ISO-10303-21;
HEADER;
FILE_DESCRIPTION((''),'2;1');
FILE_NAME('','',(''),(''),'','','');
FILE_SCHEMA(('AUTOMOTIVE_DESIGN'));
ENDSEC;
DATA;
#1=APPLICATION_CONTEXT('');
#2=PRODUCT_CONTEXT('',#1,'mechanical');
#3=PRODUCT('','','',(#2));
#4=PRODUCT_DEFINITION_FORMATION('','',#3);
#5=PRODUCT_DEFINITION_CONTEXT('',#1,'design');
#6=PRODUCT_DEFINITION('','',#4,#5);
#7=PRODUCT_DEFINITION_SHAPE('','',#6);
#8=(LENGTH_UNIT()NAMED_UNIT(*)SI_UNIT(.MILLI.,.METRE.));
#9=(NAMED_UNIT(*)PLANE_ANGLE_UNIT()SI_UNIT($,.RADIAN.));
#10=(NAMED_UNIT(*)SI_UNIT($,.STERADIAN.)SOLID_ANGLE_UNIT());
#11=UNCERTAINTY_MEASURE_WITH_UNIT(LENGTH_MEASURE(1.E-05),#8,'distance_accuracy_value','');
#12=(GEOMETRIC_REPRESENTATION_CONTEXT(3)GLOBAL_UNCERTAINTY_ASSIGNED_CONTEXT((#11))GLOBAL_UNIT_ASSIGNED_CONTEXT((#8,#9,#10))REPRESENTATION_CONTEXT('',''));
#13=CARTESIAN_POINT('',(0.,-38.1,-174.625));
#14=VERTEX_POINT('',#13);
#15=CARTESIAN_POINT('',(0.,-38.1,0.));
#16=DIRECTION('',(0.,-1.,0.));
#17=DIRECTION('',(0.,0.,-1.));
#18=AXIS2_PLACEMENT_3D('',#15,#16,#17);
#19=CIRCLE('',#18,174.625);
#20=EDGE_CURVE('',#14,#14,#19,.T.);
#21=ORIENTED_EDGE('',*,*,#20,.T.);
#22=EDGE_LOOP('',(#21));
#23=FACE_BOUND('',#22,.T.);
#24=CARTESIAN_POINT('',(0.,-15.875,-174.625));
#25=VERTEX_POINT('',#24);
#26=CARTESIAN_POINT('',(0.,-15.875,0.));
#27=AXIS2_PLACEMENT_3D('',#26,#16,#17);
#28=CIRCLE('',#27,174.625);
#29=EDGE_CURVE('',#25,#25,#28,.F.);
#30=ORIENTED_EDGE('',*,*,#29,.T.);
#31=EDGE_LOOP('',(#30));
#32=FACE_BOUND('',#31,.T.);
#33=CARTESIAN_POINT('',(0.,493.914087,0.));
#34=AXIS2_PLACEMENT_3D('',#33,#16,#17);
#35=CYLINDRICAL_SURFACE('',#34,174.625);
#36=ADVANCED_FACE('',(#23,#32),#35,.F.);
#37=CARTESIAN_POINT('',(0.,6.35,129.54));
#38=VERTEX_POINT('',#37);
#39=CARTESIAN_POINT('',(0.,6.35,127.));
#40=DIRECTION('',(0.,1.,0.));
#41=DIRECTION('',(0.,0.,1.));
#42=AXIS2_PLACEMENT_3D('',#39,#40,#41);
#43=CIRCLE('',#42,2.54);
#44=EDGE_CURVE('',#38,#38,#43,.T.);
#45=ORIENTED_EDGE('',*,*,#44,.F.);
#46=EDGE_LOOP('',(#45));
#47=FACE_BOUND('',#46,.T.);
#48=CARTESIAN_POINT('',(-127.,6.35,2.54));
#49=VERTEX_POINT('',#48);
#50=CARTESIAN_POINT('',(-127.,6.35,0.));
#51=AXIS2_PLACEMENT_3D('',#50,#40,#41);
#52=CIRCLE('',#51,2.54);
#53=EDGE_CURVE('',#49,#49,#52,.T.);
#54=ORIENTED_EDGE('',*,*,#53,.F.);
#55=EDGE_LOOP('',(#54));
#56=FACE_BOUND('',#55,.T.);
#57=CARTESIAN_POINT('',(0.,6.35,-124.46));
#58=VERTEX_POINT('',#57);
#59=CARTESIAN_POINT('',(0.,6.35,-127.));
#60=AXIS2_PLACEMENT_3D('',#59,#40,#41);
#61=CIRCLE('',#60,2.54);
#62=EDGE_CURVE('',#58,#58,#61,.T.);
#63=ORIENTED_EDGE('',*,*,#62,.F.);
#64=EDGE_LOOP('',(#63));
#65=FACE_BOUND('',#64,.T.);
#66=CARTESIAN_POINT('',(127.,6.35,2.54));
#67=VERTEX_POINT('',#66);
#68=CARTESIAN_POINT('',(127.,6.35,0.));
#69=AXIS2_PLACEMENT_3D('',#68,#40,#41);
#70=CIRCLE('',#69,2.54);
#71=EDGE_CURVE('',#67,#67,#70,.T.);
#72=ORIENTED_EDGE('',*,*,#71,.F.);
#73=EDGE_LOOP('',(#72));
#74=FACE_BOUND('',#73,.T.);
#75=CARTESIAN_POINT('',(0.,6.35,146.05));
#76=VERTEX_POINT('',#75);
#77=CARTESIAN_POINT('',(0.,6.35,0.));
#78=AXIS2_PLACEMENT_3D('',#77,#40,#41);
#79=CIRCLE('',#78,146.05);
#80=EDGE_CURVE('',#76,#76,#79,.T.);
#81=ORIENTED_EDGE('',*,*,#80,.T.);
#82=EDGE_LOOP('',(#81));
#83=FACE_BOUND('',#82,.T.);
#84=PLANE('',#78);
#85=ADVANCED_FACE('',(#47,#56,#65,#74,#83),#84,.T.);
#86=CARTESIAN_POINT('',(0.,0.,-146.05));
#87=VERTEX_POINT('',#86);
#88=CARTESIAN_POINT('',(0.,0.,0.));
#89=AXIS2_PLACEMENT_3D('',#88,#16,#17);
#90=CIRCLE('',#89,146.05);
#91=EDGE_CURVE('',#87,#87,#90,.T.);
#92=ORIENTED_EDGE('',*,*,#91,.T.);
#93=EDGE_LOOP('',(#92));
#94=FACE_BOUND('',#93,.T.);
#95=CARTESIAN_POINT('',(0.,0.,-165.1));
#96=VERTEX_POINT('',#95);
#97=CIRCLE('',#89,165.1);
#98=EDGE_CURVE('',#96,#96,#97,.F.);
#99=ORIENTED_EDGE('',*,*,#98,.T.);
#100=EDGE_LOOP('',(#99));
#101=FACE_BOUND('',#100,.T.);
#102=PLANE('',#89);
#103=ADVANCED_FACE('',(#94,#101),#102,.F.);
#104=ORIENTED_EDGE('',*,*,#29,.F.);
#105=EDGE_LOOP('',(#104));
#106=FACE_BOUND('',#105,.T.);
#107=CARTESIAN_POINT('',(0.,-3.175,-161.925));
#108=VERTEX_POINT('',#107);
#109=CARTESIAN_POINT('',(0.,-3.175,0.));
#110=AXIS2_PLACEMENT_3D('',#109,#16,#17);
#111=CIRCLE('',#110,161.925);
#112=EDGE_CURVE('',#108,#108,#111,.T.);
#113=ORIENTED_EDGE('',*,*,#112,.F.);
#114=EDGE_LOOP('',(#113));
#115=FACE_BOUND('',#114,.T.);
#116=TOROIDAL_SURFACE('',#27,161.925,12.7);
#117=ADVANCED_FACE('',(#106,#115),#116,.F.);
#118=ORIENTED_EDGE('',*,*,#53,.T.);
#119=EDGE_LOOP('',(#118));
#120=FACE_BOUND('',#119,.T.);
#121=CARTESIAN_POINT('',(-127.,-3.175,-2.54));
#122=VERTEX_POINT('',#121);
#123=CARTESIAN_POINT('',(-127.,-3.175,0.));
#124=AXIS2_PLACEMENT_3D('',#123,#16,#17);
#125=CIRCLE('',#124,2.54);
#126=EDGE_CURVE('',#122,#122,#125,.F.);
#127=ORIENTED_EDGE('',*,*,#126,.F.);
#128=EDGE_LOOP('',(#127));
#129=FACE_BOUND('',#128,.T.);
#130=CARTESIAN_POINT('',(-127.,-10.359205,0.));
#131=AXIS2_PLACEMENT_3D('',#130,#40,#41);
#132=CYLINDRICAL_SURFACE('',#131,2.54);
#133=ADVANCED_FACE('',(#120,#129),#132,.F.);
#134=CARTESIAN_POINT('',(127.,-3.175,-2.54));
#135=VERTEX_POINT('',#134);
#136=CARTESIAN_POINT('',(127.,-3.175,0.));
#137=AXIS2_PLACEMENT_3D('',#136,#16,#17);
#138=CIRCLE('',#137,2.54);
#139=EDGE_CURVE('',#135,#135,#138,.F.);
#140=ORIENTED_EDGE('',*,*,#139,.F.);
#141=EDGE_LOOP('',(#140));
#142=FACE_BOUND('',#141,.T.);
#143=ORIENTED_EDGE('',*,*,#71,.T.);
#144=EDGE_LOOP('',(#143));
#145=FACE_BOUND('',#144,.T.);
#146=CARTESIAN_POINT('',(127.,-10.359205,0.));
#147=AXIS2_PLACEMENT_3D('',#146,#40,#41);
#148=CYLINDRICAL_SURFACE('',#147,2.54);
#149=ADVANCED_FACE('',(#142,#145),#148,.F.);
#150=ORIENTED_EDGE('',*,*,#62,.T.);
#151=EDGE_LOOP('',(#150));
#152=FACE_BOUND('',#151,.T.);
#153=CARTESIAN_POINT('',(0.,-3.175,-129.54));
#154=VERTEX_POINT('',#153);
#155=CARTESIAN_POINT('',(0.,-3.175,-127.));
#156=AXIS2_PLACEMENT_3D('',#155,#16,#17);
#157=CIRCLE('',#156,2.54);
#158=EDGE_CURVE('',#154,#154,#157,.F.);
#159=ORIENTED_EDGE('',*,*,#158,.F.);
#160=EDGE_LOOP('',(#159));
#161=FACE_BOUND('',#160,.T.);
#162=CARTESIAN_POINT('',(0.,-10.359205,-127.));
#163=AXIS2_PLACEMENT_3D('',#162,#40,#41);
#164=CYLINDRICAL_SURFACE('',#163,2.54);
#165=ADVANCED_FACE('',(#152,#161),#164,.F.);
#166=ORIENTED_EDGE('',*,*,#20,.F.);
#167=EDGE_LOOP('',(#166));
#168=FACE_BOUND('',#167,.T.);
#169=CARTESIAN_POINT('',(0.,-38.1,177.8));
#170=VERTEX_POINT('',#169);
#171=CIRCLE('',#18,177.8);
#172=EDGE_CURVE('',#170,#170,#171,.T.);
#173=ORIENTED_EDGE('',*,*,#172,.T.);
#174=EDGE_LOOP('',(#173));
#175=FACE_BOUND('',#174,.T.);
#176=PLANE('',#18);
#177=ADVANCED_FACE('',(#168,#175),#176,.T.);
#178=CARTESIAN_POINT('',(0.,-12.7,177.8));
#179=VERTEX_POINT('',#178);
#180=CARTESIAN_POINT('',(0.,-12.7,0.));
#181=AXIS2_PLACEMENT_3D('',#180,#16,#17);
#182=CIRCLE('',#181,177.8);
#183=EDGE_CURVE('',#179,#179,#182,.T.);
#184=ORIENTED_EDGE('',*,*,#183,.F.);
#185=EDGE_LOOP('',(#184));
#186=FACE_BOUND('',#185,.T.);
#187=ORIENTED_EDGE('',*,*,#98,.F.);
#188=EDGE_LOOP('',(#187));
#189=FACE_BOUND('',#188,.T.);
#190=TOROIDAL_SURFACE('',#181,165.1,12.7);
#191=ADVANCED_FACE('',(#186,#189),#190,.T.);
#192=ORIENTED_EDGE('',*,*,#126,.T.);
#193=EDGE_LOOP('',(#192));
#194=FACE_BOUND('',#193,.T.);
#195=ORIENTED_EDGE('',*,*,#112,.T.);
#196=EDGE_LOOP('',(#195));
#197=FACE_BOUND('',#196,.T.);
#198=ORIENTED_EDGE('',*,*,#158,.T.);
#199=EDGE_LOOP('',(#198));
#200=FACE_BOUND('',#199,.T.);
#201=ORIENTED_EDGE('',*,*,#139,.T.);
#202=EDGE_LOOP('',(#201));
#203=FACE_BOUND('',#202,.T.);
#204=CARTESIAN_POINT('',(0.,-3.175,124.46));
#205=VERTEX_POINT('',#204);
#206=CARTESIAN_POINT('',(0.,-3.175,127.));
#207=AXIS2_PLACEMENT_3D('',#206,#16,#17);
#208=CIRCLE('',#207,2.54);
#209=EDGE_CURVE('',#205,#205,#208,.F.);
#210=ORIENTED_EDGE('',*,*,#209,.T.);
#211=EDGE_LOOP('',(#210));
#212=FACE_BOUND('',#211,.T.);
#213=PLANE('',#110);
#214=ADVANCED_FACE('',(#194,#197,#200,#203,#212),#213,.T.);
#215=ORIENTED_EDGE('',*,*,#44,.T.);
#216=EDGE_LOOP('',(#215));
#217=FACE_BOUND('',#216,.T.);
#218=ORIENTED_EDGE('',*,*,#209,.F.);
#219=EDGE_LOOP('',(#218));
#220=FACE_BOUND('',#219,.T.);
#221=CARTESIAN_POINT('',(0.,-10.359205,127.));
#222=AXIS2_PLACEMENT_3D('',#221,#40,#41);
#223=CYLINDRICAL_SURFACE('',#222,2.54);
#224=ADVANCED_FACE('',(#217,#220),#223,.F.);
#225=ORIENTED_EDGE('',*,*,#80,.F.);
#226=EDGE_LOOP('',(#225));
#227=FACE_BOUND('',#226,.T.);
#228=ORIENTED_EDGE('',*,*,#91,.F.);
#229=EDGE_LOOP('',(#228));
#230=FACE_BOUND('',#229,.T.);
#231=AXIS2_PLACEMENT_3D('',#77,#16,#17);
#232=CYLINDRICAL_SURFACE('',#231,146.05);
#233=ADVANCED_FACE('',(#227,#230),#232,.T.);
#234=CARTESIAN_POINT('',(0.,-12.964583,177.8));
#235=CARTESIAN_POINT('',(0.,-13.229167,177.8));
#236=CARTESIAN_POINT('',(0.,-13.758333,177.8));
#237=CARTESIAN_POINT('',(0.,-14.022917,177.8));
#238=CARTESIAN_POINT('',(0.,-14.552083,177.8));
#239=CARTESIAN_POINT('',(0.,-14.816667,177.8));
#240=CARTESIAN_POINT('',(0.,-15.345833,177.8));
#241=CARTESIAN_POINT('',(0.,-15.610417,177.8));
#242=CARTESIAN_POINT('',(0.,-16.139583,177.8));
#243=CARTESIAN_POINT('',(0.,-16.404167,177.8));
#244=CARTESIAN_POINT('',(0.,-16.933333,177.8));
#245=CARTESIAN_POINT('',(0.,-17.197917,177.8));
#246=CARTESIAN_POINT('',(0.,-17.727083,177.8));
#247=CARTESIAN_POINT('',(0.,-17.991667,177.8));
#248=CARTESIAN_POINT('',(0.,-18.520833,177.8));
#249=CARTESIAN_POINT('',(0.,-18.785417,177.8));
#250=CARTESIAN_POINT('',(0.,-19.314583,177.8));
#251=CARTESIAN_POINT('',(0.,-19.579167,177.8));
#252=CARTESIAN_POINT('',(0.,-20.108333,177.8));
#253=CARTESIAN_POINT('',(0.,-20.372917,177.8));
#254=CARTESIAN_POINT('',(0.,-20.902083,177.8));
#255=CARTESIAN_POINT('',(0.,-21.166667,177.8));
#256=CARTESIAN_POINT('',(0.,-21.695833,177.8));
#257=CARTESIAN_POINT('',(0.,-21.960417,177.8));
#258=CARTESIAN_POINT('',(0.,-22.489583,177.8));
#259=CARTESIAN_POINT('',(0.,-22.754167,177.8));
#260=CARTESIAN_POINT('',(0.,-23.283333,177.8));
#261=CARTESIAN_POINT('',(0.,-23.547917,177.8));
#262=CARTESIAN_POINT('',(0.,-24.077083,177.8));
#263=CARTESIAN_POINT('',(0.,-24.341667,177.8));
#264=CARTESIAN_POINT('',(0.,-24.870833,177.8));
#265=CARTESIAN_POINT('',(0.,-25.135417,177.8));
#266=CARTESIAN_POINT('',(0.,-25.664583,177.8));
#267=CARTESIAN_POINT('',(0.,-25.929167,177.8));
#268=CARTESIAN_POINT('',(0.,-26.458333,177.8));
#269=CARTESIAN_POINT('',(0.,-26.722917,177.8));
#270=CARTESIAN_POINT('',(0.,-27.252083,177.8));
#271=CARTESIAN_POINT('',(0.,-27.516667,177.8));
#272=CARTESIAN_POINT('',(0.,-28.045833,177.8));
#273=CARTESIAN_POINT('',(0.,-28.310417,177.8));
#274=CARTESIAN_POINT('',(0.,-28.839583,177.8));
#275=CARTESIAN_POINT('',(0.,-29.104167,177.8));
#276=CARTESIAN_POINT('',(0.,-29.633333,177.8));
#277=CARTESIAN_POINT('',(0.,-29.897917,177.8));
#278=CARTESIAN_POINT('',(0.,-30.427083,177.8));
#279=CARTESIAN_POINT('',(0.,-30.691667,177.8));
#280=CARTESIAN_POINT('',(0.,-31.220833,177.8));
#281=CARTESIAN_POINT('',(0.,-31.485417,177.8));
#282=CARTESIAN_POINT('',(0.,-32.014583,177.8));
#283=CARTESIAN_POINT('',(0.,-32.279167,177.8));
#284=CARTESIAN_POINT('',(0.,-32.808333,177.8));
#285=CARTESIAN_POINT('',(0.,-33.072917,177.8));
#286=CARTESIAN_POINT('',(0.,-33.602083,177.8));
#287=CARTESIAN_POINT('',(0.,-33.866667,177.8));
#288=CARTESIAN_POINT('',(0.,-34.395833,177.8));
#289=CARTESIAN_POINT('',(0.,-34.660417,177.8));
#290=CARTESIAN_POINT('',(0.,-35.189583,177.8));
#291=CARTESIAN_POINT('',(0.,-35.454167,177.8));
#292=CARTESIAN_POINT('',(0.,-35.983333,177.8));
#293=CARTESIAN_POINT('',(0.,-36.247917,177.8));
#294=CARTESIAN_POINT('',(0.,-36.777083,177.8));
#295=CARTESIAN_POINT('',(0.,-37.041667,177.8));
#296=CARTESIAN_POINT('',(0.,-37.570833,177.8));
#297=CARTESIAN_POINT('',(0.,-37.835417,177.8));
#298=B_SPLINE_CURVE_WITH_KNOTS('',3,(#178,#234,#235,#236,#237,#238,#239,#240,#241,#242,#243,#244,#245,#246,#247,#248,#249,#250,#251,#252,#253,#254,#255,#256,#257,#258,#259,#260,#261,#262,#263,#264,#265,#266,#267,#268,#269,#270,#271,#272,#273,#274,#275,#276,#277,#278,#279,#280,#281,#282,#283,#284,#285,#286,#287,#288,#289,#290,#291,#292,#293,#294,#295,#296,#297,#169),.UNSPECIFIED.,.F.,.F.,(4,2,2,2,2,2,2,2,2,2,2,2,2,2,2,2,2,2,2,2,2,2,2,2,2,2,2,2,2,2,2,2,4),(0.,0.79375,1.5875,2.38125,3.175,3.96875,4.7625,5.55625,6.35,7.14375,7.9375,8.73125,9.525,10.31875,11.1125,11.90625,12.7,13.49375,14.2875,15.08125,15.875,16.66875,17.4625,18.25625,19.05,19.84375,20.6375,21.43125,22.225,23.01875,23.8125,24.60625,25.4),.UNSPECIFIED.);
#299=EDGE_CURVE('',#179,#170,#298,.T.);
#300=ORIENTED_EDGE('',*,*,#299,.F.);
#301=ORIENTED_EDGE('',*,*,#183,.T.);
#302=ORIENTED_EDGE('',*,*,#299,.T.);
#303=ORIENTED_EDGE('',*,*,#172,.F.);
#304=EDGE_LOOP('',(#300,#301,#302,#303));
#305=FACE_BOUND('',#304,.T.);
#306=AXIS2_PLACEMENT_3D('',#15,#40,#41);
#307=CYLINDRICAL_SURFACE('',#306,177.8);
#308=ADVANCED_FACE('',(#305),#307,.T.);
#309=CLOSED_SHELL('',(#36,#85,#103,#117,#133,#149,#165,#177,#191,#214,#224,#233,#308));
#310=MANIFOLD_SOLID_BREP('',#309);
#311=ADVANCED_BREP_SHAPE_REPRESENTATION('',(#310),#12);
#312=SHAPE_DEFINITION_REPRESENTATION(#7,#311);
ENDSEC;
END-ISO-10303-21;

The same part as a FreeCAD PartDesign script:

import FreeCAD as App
import Part
import Sketcher
from FreeCAD import Vector
Q = App.Units.Quantity


def edges_at(feature, points):
    """Names of the edges that pass closest to the given points."""
    edges = feature.Shape.Edges
    near = lambda p: min(range(len(edges)), key=lambda i: edges[i].distToShape(Part.Vertex(*p))[0])
    return sorted({f"Edge{near(p) + 1}" for p in points})

doc = App.newDocument("Part")
body = doc.addObject("PartDesign::Body", "Body")

# Sketch on XZ plane
sketch1 = body.newObject("Sketcher::SketchObject", "Sketch")
sketch1.AttachmentSupport = (doc.getObject("XZ_Plane"), [""])
sketch1.MapMode = "FlatFace"
sketch1.addGeometry(Part.Circle(Vector(0, 0, 0), Vector(0, 0, 1), 146.05), False)
sketch1.addConstraint(Sketcher.Constraint("Coincident", 0, 3, -1, 1))
sketch1.addConstraint(Sketcher.Constraint("Diameter", 0, Q("11.5 in")))
pad1 = body.newObject("PartDesign::Pad", "Pad")
pad1.Profile = sketch1
pad1.Length = Q("0.25 in")
pad1.Reversed = True

# Sketch on XZ plane
sketch2 = body.newObject("Sketcher::SketchObject", "Sketch001")
sketch2.AttachmentSupport = (doc.getObject("XZ_Plane"), [""])
sketch2.MapMode = "FlatFace"
sketch2.addGeometry(Part.Circle(Vector(0, 0, 0), Vector(0, 0, 1), 177.8), False)
sketch2.addConstraint(Sketcher.Constraint("Coincident", 0, 3, -1, 1))
sketch2.addConstraint(Sketcher.Constraint("Diameter", 0, Q("14 in")))
pad2 = body.newObject("PartDesign::Pad", "Pad001")
pad2.Profile = sketch2
pad2.Length = Q("1.5 in")

# Sketch on XZ plane
sketch3 = body.newObject("Sketcher::SketchObject", "Sketch002")
sketch3.AttachmentSupport = (doc.getObject("XZ_Plane"), [""])
sketch3.MapMode = "FlatFace"
sketch3.AttachmentOffset = App.Placement(Vector(0, 0, 1.5 * 25.4), App.Rotation())
sketch3.addGeometry(Part.Circle(Vector(0, 0, 0), Vector(0, 0, 1), 174.625), False)
sketch3.addConstraint(Sketcher.Constraint("Coincident", 0, 3, -1, 1))
sketch3.addConstraint(Sketcher.Constraint("Diameter", 0, Q("13.75 in")))
pocket1 = body.newObject("PartDesign::Pocket", "Pocket")
pocket1.Profile = sketch3
pocket1.Length = Q("1.375 in")
doc.recompute()

fillet = body.newObject("PartDesign::Fillet", "Fillet")
fillet.Base = (pocket1, edges_at(pocket1, [(0, -3.175, 174.625)]))
fillet.Radius = Q("0.5 in")
doc.recompute()

fillet2 = body.newObject("PartDesign::Fillet", "Fillet001")
fillet2.Base = (fillet, edges_at(fillet, [(0, 0, -177.8)]))
fillet2.Radius = Q("0.5 in")

# Sketch on XZ plane
sketch4 = body.newObject("Sketcher::SketchObject", "Sketch003")
sketch4.AttachmentSupport = (doc.getObject("XZ_Plane"), [""])
sketch4.MapMode = "FlatFace"
sketch4.AttachmentOffset = App.Placement(Vector(0, 0, -0.25 * 25.4), App.Rotation())
sketch4.addGeometry(Part.Circle(Vector(0, -127, 0), Vector(0, 0, 1), 2.54), False)
sketch4.addGeometry(Part.Circle(Vector(127, 0, 0), Vector(0, 0, 1), 2.54), False)
sketch4.addGeometry(Part.Circle(Vector(-127, 0, 0), Vector(0, 0, 1), 2.54), False)
sketch4.addGeometry(Part.Circle(Vector(0, 127, 0), Vector(0, 0, 1), 2.54), False)
sketch4.addConstraint(Sketcher.Constraint("Equal", 0, 1))
sketch4.addConstraint(Sketcher.Constraint("Equal", 1, 2))
sketch4.addConstraint(Sketcher.Constraint("Equal", 2, 3))
sketch4.addConstraint(Sketcher.Constraint("Symmetric", 1, 3, 2, 3, -1, 1))
sketch4.addConstraint(Sketcher.Constraint("Symmetric", 0, 3, 3, 3, -1, 1))
sketch4.addConstraint(Sketcher.Constraint("PointOnObject", 0, 3, -2))
sketch4.addConstraint(Sketcher.Constraint("PointOnObject", 1, 3, -1))
sketch4.addConstraint(Sketcher.Constraint("Diameter", 0, Q("0.2 in")))
sketch4.addConstraint(Sketcher.Constraint("DistanceY", 0, 3, -1, 1, Q("5 in")))
sketch4.addConstraint(Sketcher.Constraint("DistanceX", -1, 1, 1, 3, Q("5 in")))
pocket2 = body.newObject("PartDesign::Pocket", "Pocket001")
pocket2.Profile = sketch4
pocket2.Length = Q("0.375 in")
pocket2.Reversed = True

doc.recompute()
